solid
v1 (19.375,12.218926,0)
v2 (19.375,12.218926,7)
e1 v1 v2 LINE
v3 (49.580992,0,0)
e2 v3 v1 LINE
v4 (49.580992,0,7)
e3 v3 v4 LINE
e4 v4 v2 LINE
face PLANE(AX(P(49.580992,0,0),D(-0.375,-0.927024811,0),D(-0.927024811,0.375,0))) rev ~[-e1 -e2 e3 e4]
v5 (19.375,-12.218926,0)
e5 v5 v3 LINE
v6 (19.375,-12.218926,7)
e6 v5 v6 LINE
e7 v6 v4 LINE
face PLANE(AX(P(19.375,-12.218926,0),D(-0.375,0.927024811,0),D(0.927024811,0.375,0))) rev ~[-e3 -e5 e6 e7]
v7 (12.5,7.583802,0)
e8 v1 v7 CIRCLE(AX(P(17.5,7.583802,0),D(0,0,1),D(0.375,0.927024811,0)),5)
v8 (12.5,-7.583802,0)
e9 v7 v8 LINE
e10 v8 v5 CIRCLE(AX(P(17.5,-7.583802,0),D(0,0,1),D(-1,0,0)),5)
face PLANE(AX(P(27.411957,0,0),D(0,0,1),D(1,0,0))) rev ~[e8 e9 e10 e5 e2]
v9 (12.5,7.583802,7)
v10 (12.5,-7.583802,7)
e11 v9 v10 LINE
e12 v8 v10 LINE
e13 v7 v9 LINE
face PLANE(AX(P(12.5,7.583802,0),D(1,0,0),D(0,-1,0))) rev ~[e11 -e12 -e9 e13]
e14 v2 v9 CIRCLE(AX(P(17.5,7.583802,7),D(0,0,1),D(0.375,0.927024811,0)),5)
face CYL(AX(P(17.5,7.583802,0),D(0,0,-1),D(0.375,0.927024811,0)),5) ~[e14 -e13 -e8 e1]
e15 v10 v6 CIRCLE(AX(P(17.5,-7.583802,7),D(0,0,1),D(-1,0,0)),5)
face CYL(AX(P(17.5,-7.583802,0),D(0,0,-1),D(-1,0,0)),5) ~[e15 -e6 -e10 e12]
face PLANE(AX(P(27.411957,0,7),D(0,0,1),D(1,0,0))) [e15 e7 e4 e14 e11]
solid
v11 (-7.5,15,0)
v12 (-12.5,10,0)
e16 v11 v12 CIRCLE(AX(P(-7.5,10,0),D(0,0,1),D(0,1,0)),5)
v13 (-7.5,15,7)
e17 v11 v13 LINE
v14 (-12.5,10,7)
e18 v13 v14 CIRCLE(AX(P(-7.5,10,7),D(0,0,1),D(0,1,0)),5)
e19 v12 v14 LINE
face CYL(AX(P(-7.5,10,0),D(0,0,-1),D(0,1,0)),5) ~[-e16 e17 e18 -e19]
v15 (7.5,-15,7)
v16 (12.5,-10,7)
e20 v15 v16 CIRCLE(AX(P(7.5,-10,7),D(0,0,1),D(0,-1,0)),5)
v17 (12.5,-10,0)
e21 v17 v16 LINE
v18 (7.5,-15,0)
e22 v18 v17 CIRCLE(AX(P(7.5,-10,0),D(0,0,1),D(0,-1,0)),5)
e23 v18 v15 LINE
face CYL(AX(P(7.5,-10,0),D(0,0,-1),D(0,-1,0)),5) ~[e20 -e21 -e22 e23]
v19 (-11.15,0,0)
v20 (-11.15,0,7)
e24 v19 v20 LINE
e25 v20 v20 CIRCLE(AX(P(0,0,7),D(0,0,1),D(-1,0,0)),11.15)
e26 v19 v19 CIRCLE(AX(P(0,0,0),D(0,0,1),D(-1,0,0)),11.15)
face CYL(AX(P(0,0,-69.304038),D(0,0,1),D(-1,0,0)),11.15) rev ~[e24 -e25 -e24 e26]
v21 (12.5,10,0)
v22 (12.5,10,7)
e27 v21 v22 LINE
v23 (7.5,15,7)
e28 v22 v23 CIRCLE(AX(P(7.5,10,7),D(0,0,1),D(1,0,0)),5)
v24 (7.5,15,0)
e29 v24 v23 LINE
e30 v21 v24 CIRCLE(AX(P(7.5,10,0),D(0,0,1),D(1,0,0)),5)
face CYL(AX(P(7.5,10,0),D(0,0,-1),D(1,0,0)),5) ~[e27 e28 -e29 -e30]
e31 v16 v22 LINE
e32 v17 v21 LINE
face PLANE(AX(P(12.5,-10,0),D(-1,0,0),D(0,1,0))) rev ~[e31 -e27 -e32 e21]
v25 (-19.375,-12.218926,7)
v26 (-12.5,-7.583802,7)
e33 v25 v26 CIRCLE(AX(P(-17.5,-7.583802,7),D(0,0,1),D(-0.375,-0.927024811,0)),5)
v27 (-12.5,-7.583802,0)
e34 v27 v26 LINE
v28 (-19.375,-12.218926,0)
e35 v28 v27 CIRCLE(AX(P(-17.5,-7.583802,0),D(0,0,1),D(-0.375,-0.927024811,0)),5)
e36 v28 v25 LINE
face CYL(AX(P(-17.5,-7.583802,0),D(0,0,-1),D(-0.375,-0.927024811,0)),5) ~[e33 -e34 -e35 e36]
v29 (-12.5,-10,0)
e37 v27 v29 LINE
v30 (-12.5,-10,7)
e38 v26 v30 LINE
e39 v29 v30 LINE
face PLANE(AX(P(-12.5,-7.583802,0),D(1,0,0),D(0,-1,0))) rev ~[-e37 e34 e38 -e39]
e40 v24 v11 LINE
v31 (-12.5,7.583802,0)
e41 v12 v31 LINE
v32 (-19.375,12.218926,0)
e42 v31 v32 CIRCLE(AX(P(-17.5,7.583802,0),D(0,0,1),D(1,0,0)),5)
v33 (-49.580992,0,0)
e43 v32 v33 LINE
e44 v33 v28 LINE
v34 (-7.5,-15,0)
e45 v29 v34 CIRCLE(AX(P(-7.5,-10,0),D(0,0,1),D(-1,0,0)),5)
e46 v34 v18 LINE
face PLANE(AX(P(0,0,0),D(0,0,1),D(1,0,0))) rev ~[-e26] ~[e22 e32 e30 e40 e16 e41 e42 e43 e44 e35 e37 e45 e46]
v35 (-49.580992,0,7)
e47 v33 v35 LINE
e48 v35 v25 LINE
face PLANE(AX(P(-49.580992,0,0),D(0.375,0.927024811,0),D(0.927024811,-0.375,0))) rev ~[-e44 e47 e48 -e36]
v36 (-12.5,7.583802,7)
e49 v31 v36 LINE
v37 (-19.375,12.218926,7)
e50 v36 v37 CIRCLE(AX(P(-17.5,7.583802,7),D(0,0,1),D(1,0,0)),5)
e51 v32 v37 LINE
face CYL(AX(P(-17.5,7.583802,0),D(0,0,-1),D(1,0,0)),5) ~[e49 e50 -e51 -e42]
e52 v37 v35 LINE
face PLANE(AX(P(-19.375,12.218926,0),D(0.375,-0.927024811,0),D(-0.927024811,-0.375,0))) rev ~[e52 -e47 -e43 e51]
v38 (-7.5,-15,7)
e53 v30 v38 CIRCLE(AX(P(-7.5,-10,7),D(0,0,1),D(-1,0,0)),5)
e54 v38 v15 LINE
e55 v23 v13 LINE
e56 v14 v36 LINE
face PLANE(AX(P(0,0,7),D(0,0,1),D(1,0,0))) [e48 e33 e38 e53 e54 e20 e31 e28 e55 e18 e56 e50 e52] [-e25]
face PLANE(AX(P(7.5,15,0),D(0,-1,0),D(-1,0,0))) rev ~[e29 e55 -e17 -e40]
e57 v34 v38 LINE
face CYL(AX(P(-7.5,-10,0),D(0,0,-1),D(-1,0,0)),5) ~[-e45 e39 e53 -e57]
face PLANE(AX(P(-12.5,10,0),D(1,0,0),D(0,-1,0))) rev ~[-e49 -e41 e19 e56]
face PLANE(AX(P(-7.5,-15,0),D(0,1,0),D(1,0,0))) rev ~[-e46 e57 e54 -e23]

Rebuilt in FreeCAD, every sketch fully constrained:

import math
import FreeCAD as App
import Part
import Sketcher

V = App.Vector
Q = App.Units.Quantity

doc = App.newDocument("Part")
params = doc.addObject("Spreadsheet::Sheet", "Params")
for row, (alias, value) in enumerate([
    ("sketch1_radius", "5 mm"),
    ("sketch1_width", "15 mm"),
    ("sketch1_height", "20 mm"),
    ("pad1_length", "7 mm"),
    ("sketch2_diameter", "22.3 mm"),
    ("hole_diameter", "22.3 mm"),
    ("sketch3_radius", "5 mm"),
    ("pad2_length", "7 mm"),
], start=1):
    params.set(f"A{row}", alias)
    params.set(f"B{row}", "=" + value)
    params.setAlias(f"B{row}", alias)

body = doc.addObject("PartDesign::Body", "Body")

# Sketch on XY plane
sketch1 = doc.addObject("Sketcher::SketchObject", "Sketch")
body.addObject(sketch1)
sketch1.AttachmentSupport = (doc.XY_Plane, [""])
sketch1.MapMode = "FlatFace"
sketch1.addGeometry([
    Part.ArcOfCircle(Part.Circle(V(7.5, 10, 0), V(0, 0, 1), 5), math.radians(0), math.radians(90)),  # 0
    Part.LineSegment(V(7.5, 15, 0), V(-7.5, 15, 0)),  # 1
    Part.ArcOfCircle(Part.Circle(V(-7.5, 10, 0), V(0, 0, 1), 5), math.radians(90), math.radians(180)),  # 2
    Part.LineSegment(V(-12.5, 10, 0), V(-12.5, 7.6, 0)),  # 3
    Part.ArcOfCircle(Part.Circle(V(-17.5, 7.6, 0), V(0, 0, 1), 5), math.radians(0), math.radians(112)),  # 4
    Part.LineSegment(V(-19.4, 12.2, 0), V(-49.6, 0, 0)),  # 5
    Part.LineSegment(V(-49.6, 0, 0), V(-19.4, -12.2, 0)),  # 6
    Part.ArcOfCircle(Part.Circle(V(-17.5, -7.6, 0), V(0, 0, 1), 5), math.radians(-112), math.radians(0)),  # 7
    Part.LineSegment(V(-12.5, -7.6, 0), V(-12.5, -10, 0)),  # 8
    Part.ArcOfCircle(Part.Circle(V(-7.5, -10, 0), V(0, 0, 1), 5), math.radians(180), math.radians(270)),  # 9
    Part.LineSegment(V(-7.5, -15, 0), V(7.5, -15, 0)),  # 10
    Part.ArcOfCircle(Part.Circle(V(7.5, -10, 0), V(0, 0, 1), 5), math.radians(-90), math.radians(0)),  # 11
    Part.LineSegment(V(12.5, -10, 0), V(12.5, 10, 0)),  # 12
], False)
sketch1.addConstraint([
    Sketcher.Constraint("Tangent", 0, 2, 1, 1),
    Sketcher.Constraint("Tangent", 1, 2, 2, 1),
    Sketcher.Constraint("Tangent", 2, 2, 3, 1),
    Sketcher.Constraint("Tangent", 3, 2, 4, 1),
    Sketcher.Constraint("Tangent", 4, 2, 5, 1),
    Sketcher.Constraint("Coincident", 5, 2, 6, 1),
    Sketcher.Constraint("Tangent", 6, 2, 7, 1),
    Sketcher.Constraint("Tangent", 7, 2, 8, 1),
    Sketcher.Constraint("Tangent", 8, 2, 9, 1),
    Sketcher.Constraint("Tangent", 9, 2, 10, 1),
    Sketcher.Constraint("Tangent", 10, 2, 11, 1),
    Sketcher.Constraint("Tangent", 11, 2, 12, 1),
    Sketcher.Constraint("Tangent", 12, 2, 0, 1),
    Sketcher.Constraint("Horizontal", 1),
    Sketcher.Constraint("Vertical", 3),
    Sketcher.Constraint("Vertical", 8),
    Sketcher.Constraint("Horizontal", 10),
    Sketcher.Constraint("Vertical", 12),
    Sketcher.Constraint("Equal", 0, 2),
    Sketcher.Constraint("Equal", 2, 4),
    Sketcher.Constraint("Equal", 4, 7),
    Sketcher.Constraint("Equal", 7, 9),
    Sketcher.Constraint("Equal", 9, 11),
    Sketcher.Constraint("Symmetric", 0, 3, 9, 3, -1, 1),
    Sketcher.Constraint("Symmetric", 4, 3, 7, 3, -1),
    Sketcher.Constraint("PointOnObject", 5, 2, -1),
    Sketcher.Constraint("Radius", 0, Q("5 mm")),
    Sketcher.Constraint("DistanceX", 1, 2, 1, 1, Q("15 mm")),
    Sketcher.Constraint("DistanceY", 12, 1, 12, 2, Q("20 mm")),
    Sketcher.Constraint("DistanceY", 3, 2, 3, 1, Q("2.416198 mm")),
    Sketcher.Constraint("DistanceX", 4, 2, -1, 1, Q("19.375 mm")),
])
sketch1.setExpression("Constraints[26]", "Params.sketch1_radius")
sketch1.setExpression("Constraints[27]", "Params.sketch1_width")
sketch1.setExpression("Constraints[28]", "Params.sketch1_height")
pad1 = doc.addObject("PartDesign::Pad", "Pad")
body.addObject(pad1)
pad1.Profile = sketch1
pad1.setExpression("Length", "Params.pad1_length")

# Sketch on XY plane
sketch2 = doc.addObject("Sketcher::SketchObject", "Sketch001")
body.addObject(sketch2)
sketch2.AttachmentSupport = (doc.XY_Plane, [""])
sketch2.MapMode = "FlatFace"
sketch2.addGeometry(Part.Circle(V(0, 0, 0), V(0, 0, 1), 11), False)
sketch2.addConstraint([
    Sketcher.Constraint("Coincident", 0, 3, -1, 1),
    Sketcher.Constraint("Diameter", 0, Q("22.3 mm")),
])
sketch2.setExpression("Constraints[1]", "Params.sketch2_diameter")
doc.recompute()
hole = doc.addObject("PartDesign::Hole", "Hole")
body.addObject(hole)
hole.Profile = sketch2
hole.ThreadType = "None"
hole.setExpression("Diameter", "Params.hole_diameter")
hole.DepthType = "ThroughAll"
hole.Reversed = True
body2 = doc.addObject("PartDesign::Body", "Body001")

# Sketch on XY plane
sketch3 = doc.addObject("Sketcher::SketchObject", "Sketch002")
body2.addObject(sketch3)
sketch3.AttachmentSupport = (doc.getObject("XY_Plane001"), [""])
sketch3.MapMode = "FlatFace"
sketch3.addGeometry([
    Part.LineSegment(V(12, 8, 0), V(12, -8, 0)),  # 0
    Part.ArcOfCircle(Part.Circle(V(18, -8, 0), V(0, 0, 1), 5), math.radians(180), math.radians(292)),  # 1
    Part.LineSegment(V(19, -12, 0), V(50, 0, 0)),  # 2
    Part.LineSegment(V(50, 0, 0), V(19, 12, 0)),  # 3
    Part.ArcOfCircle(Part.Circle(V(18, 8, 0), V(0, 0, 1), 5), math.radians(68), math.radians(180)),  # 4
], False)
sketch3.addConstraint([
    Sketcher.Constraint("Tangent", 0, 2, 1, 1),
    Sketcher.Constraint("Tangent", 1, 2, 2, 1),
    Sketcher.Constraint("Coincident", 2, 2, 3, 1),
    Sketcher.Constraint("Tangent", 3, 2, 4, 1),
    Sketcher.Constraint("Tangent", 4, 2, 0, 1),
    Sketcher.Constraint("Vertical", 0),
    Sketcher.Constraint("Equal", 1, 4),
    Sketcher.Constraint("Symmetric", 1, 2, 3, 2, -1),
    Sketcher.Constraint("Radius", 1, Q("5 mm")),
    Sketcher.Constraint("DistanceX", -1, 1, 1, 3, Q("17.5 mm")),
    Sketcher.Constraint("DistanceX", -1, 1, 1, 2, Q("19.375 mm")),
    Sketcher.Constraint("Distance", 2, Q("32.583802 mm")),
])
sketch3.setExpression("Constraints[8]", "Params.sketch3_radius")
pad2 = doc.addObject("PartDesign::Pad", "Pad001")
body2.addObject(pad2)
pad2.Profile = sketch3
pad2.setExpression("Length", "Params.pad2_length")

doc.recompute()
